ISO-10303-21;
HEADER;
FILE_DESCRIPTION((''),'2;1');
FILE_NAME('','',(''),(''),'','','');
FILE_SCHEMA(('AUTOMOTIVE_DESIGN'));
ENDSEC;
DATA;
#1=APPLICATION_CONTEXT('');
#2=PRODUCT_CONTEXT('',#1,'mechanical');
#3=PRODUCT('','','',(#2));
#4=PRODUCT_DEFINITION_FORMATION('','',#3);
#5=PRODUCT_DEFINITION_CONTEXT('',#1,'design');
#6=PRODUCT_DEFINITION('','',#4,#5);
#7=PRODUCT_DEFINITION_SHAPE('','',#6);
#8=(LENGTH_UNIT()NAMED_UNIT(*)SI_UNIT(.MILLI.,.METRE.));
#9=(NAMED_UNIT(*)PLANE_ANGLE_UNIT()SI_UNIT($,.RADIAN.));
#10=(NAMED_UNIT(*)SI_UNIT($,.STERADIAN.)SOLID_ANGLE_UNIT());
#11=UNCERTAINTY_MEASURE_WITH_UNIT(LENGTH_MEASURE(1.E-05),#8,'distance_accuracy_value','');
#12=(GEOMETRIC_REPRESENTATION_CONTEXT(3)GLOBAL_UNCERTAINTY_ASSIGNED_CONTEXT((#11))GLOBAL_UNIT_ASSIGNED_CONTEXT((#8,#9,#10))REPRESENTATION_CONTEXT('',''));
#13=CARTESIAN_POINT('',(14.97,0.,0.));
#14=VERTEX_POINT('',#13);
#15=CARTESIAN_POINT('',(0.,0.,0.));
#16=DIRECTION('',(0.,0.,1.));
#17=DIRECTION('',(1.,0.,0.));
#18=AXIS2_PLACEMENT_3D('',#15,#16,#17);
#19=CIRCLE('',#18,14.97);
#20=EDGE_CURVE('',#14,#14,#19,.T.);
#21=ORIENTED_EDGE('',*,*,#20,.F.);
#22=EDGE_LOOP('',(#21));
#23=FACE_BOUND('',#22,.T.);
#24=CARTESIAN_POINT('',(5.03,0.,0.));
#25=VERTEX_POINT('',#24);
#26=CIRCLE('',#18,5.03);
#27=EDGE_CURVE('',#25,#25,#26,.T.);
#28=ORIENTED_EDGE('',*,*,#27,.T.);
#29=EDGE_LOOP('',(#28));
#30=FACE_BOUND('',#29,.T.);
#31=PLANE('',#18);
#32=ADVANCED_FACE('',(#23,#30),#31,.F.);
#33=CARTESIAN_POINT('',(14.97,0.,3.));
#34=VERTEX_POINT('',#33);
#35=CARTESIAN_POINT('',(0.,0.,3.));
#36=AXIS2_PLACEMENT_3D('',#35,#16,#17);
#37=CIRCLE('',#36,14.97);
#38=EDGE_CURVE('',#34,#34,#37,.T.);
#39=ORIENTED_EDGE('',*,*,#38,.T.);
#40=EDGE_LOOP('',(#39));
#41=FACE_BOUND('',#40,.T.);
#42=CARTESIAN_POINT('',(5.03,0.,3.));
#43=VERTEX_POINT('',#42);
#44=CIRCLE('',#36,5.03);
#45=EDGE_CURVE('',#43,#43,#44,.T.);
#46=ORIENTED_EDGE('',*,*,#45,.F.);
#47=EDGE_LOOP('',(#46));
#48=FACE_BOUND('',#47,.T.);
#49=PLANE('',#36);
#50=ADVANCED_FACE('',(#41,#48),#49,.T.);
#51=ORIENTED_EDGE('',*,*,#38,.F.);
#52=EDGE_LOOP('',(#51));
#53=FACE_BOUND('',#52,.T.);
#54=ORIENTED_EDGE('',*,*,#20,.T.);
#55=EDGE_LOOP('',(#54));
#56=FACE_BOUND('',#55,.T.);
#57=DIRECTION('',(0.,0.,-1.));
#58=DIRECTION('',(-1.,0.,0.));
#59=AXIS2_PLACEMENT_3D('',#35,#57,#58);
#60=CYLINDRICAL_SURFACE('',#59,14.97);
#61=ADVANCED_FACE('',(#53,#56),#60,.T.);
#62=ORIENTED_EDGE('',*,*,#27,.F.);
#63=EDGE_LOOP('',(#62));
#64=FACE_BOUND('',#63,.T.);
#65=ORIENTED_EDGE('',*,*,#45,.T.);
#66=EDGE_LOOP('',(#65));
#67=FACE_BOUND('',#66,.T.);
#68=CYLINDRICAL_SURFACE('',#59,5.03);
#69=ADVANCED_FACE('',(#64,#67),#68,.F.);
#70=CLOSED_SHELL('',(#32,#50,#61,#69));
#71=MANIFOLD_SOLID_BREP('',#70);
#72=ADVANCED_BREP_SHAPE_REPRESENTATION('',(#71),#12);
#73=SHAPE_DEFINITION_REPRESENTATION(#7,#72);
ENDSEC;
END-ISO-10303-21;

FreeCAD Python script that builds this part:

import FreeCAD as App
import Part
import Sketcher

doc = App.newDocument("Part")
body = doc.addObject("PartDesign::Body", "Body")

# Sketch on XY plane
sketch1 = body.newObject("Sketcher::SketchObject", "Sketch")
sketch1.AttachmentSupport = (doc.getObject("XY_Plane"), [""])
sketch1.MapMode = "FlatFace"
sketch1.addGeometry([
    Part.Circle(App.Vector(0, 0, 0), App.Vector(0, 0, 1), 15),
    Part.Circle(App.Vector(0, 0, 0), App.Vector(0, 0, 1), 5),
], False)
sketch1.addConstraint([
    Sketcher.Constraint("Coincident", 0, 3, -1, 1),
    Sketcher.Constraint("Coincident", 1, 3, -1, 1),
    Sketcher.Constraint("Diameter", 0, 29.94),
    Sketcher.Constraint("Diameter", 1, 10.06),
])
pad1 = body.newObject("PartDesign::Pad", "Pad")
pad1.Profile = sketch1
pad1.Length = 3

doc.recompute()
